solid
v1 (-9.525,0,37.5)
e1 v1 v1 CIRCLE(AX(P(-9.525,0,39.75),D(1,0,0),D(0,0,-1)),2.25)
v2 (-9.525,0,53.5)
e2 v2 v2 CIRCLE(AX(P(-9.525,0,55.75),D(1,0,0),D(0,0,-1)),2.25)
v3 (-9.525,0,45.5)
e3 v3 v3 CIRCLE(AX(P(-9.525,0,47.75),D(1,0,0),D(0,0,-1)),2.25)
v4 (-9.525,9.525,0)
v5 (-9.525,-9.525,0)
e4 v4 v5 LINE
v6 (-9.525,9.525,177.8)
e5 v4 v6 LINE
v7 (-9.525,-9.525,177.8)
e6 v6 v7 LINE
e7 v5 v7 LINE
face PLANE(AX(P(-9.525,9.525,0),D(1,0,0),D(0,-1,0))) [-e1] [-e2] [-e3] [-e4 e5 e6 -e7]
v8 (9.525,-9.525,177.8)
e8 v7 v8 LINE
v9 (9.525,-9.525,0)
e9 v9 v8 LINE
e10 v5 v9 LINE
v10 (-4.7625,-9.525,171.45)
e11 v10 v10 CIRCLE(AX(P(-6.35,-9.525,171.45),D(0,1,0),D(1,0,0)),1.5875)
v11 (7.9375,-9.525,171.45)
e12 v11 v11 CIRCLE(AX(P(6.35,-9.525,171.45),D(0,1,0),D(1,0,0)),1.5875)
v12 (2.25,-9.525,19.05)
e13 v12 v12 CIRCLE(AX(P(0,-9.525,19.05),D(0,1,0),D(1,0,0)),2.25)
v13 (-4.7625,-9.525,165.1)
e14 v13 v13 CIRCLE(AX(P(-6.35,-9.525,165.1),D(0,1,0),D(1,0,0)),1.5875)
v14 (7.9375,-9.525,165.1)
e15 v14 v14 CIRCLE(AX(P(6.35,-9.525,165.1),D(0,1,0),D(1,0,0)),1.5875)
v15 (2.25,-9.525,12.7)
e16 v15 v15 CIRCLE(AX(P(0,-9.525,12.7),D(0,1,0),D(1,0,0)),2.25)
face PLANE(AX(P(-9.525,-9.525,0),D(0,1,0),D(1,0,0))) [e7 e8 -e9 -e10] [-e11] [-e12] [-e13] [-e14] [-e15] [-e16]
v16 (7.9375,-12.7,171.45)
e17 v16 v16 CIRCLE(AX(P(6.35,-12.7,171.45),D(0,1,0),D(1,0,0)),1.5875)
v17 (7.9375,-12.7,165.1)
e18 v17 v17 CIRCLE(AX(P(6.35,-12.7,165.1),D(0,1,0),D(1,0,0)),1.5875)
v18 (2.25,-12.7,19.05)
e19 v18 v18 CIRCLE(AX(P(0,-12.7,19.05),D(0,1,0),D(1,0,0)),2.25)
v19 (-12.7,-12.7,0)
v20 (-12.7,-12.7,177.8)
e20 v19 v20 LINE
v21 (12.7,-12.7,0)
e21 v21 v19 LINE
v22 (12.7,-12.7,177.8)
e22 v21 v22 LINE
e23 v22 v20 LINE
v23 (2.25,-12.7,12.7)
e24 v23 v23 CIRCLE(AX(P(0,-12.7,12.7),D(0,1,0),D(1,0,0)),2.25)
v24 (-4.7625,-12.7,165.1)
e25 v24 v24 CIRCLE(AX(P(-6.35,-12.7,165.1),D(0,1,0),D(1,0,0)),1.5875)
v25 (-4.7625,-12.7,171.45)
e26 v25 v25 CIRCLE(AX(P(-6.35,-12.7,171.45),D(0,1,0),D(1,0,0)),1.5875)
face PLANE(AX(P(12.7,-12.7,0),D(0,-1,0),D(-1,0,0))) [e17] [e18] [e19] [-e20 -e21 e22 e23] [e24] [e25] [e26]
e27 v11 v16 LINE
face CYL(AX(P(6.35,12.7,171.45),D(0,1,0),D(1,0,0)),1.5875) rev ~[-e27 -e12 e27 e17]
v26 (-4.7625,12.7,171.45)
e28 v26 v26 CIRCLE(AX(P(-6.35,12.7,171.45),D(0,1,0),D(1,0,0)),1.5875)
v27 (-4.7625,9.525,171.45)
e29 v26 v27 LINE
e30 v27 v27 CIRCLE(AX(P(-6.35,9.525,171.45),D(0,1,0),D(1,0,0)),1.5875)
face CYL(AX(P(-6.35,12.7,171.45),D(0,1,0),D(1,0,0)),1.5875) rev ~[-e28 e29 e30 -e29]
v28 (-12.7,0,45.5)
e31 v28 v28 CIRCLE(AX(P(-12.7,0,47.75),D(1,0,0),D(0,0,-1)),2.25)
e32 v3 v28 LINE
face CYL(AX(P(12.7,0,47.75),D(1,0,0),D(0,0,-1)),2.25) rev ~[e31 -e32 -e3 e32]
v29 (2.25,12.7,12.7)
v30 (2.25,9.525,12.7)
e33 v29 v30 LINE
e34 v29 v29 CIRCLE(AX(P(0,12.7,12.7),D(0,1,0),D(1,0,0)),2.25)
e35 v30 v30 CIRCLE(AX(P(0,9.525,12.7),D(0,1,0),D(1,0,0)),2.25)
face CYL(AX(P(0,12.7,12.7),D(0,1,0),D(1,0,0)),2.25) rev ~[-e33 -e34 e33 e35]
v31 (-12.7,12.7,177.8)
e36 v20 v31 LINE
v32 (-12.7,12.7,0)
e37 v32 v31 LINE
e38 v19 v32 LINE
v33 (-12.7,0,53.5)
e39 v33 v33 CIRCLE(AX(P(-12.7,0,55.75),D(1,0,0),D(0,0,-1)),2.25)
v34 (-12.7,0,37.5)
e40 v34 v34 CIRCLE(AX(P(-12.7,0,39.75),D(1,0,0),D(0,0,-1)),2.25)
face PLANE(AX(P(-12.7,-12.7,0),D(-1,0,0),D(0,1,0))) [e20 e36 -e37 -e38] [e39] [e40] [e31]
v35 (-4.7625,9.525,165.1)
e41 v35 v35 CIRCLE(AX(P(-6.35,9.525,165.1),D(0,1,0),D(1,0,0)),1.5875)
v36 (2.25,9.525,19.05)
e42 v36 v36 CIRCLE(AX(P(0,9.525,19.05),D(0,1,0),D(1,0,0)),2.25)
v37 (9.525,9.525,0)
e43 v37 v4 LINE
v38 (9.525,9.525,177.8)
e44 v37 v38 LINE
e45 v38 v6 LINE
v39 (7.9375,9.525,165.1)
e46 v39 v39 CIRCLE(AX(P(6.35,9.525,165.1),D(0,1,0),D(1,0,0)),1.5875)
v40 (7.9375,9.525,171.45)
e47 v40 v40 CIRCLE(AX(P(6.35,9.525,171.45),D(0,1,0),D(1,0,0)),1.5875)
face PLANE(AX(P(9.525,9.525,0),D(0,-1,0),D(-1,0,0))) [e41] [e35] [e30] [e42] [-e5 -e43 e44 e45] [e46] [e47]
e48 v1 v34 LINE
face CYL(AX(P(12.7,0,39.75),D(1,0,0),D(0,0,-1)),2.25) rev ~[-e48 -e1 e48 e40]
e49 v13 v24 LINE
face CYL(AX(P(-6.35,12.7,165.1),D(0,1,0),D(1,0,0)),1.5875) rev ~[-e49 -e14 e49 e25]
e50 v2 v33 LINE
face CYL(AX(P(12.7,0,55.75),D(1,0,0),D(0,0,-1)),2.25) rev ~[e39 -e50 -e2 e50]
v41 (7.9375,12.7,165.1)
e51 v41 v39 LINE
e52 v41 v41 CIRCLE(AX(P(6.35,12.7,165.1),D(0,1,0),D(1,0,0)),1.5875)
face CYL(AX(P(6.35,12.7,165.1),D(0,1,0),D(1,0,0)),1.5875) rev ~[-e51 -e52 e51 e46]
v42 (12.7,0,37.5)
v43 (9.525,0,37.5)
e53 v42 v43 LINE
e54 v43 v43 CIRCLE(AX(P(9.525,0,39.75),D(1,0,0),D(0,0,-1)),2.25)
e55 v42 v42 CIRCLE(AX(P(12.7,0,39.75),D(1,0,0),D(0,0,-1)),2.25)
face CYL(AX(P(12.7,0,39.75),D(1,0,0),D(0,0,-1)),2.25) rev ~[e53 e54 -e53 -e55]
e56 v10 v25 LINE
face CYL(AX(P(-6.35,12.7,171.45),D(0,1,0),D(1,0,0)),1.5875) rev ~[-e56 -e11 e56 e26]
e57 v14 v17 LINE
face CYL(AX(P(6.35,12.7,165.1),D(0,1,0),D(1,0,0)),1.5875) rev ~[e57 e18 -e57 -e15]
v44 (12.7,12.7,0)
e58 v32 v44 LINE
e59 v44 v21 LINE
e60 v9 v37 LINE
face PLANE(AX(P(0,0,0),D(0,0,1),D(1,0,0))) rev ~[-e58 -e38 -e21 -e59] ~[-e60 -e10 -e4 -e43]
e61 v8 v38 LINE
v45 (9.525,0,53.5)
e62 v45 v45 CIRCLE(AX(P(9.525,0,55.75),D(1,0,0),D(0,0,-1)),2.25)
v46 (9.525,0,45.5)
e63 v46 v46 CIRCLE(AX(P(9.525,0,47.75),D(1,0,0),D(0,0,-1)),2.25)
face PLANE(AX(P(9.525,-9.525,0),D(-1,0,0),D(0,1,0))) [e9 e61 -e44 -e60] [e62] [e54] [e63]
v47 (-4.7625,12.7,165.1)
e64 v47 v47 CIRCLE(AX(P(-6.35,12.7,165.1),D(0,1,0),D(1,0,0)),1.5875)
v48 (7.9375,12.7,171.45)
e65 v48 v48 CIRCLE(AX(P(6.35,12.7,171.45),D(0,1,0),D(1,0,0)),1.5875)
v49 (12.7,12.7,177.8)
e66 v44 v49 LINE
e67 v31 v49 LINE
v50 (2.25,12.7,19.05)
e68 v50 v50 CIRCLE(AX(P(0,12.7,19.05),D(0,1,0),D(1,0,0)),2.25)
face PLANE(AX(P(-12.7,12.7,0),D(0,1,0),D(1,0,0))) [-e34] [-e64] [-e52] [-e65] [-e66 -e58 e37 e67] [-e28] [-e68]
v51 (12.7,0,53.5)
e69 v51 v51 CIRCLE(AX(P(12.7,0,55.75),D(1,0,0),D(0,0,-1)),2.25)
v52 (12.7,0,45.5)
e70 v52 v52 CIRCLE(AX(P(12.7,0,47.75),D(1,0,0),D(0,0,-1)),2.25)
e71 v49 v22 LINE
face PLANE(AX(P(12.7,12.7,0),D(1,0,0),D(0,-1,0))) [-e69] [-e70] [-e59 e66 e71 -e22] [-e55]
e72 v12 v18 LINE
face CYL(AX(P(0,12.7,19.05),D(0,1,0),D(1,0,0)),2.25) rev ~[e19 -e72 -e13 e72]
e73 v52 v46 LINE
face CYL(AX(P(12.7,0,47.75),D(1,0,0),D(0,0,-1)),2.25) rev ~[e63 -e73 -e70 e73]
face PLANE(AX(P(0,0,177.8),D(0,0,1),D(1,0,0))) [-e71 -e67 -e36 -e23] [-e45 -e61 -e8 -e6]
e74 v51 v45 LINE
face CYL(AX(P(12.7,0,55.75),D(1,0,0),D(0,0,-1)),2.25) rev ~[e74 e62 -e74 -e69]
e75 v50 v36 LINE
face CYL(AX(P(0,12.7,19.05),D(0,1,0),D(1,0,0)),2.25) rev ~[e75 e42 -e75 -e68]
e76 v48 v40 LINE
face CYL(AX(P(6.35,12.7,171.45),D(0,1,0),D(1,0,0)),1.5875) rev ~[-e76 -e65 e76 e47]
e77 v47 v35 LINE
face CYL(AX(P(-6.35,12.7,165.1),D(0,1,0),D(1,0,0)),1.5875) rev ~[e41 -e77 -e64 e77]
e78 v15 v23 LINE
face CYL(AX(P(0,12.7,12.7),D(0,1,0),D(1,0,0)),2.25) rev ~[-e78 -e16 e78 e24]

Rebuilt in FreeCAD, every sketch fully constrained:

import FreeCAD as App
import Part
import Sketcher
from FreeCAD import Vector
Q = App.Units.Quantity

doc = App.newDocument("Part")
body = doc.addObject("PartDesign::Body", "Body")

sketch1 = doc.addObject("Sketcher::SketchObject", "Sketch")
body.addObject(sketch1)
sketch1.AttachmentSupport = (doc.XY_Plane, [""])
sketch1.MapMode = "FlatFace"
sketch1.addGeometry([
    Part.LineSegment(Vector(-13, -13, 0), Vector(13, -13, 0)),
    Part.LineSegment(Vector(13, -13, 0), Vector(13, 13, 0)),
    Part.LineSegment(Vector(13, 13, 0), Vector(-13, 13, 0)),
    Part.LineSegment(Vector(-13, 13, 0), Vector(-13, -13, 0)),
    Part.LineSegment(Vector(-10, 10, 0), Vector(10, 10, 0)),
    Part.LineSegment(Vector(10, 10, 0), Vector(10, -10, 0)),
    Part.LineSegment(Vector(10, -10, 0), Vector(-10, -10, 0)),
    Part.LineSegment(Vector(-10, -10, 0), Vector(-10, 10, 0)),
], False)
sketch1.addConstraint([
    Sketcher.Constraint("Coincident", 0, 2, 1, 1),
    Sketcher.Constraint("Coincident", 1, 2, 2, 1),
    Sketcher.Constraint("Coincident", 2, 2, 3, 1),
    Sketcher.Constraint("Coincident", 3, 2, 0, 1),
    Sketcher.Constraint("Coincident", 4, 2, 5, 1),
    Sketcher.Constraint("Coincident", 5, 2, 6, 1),
    Sketcher.Constraint("Coincident", 6, 2, 7, 1),
    Sketcher.Constraint("Coincident", 7, 2, 4, 1),
    Sketcher.Constraint("Horizontal", 0),
    Sketcher.Constraint("Vertical", 1),
    Sketcher.Constraint("Horizontal", 2),
    Sketcher.Constraint("Vertical", 3),
    Sketcher.Constraint("Horizontal", 4),
    Sketcher.Constraint("Vertical", 5),
    Sketcher.Constraint("Horizontal", 6),
    Sketcher.Constraint("Vertical", 7),
    Sketcher.Constraint("Symmetric", 0, 2, 2, 2, -1, 1),
    Sketcher.Constraint("Symmetric", 4, 2, 6, 2, -1, 1),
    Sketcher.Constraint("Equal", 2, 1),
    Sketcher.Constraint("Equal", 6, 5),
    Sketcher.Constraint("DistanceX", 0, 1, 0, 2, Q("1 in")),
    Sketcher.Constraint("DistanceX", 4, 2, 1, 2, Q("0.125 in")),
])
pad1 = doc.addObject("PartDesign::Pad", "Pad")
body.addObject(pad1)
pad1.Profile = sketch1
pad1.Length = Q("7 in")

sketch2 = doc.addObject("Sketcher::SketchObject", "Sketch001")
body.addObject(sketch2)
sketch2.AttachmentSupport = (doc.YZ_Plane, [""])
sketch2.MapMode = "FlatFace"
sketch2.AttachmentOffset = App.Placement(Vector(0, 0, 0.5 * 25.4), App.Rotation())
sketch2.addGeometry([
    Part.Circle(Vector(0, 39.8, 0), Vector(0, 0, 1), 2.2),
    Part.Circle(Vector(0, 47.8, 0), Vector(0, 0, 1), 2.2),
    Part.Circle(Vector(0, 55.8, 0), Vector(0, 0, 1), 2.2),
], False)
sketch2.addConstraint([
    Sketcher.Constraint("Equal", 0, 1),
    Sketcher.Constraint("Equal", 1, 2),
    Sketcher.Constraint("PointOnObject", 0, 3, -2),
    Sketcher.Constraint("PointOnObject", 1, 3, -2),
    Sketcher.Constraint("PointOnObject", 2, 3, -2),
    Sketcher.Constraint("Diameter", 0, Q("4.5 mm")),
    Sketcher.Constraint("DistanceY", 0, 3, 1, 3, Q("8 mm")),
    Sketcher.Constraint("DistanceY", 1, 3, 2, 3, Q("8 mm")),
    Sketcher.Constraint("DistanceY", -1, 1, 0, 3, Q("39.75 mm")),
])
pocket1 = doc.addObject("PartDesign::Pocket", "Pocket")
body.addObject(pocket1)
pocket1.Profile = sketch2
pocket1.Type = "ThroughAll"

sketch3 = doc.addObject("Sketcher::SketchObject", "Sketch002")
body.addObject(sketch3)
sketch3.AttachmentSupport = (doc.XZ_Plane, [""])
sketch3.MapMode = "FlatFace"
sketch3.AttachmentOffset = App.Placement(Vector(0, 0, -0.5 * 25.4), App.Rotation())
sketch3.addGeometry([
    Part.Circle(Vector(0, 12.7, 0), Vector(0, 0, 1), 2.2),
    Part.Circle(Vector(0, 19.1, 0), Vector(0, 0, 1), 2.2),
], False)
sketch3.addConstraint([
    Sketcher.Constraint("Equal", 0, 1),
    Sketcher.Constraint("PointOnObject", 0, 3, -2),
    Sketcher.Constraint("PointOnObject", 1, 3, -2),
    Sketcher.Constraint("DistanceY", -1, 1, 0, 3, Q("0.5 in")),
    Sketcher.Constraint("Diameter", 0, Q("4.5 mm")),
    Sketcher.Constraint("DistanceY", 0, 3, 1, 3, Q("0.25 in")),
])
pocket2 = doc.addObject("PartDesign::Pocket", "Pocket001")
body.addObject(pocket2)
pocket2.Profile = sketch3
pocket2.Length = Q("1 in")
pocket2.Reversed = True

sketch4 = doc.addObject("Sketcher::SketchObject", "Sketch003")
body.addObject(sketch4)
sketch4.AttachmentSupport = (doc.XZ_Plane, [""])
sketch4.MapMode = "FlatFace"
sketch4.AttachmentOffset = App.Placement(Vector(0, 0, -0.5 * 25.4), App.Rotation())
sketch4.addGeometry([
    Part.Circle(Vector(-6.3, 171.4, 0), Vector(0, 0, 1), 1.6),
    Part.Circle(Vector(6.3, 171.4, 0), Vector(0, 0, 1), 1.6),
    Part.Circle(Vector(-6.3, 165.1, 0), Vector(0, 0, 1), 1.6),
    Part.Circle(Vector(6.3, 165.1, 0), Vector(0, 0, 1), 1.6),
], False)
sketch4.addConstraint([
    Sketcher.Constraint("Equal", 0, 1),
    Sketcher.Constraint("Equal", 1, 2),
    Sketcher.Constraint("Equal", 2, 3),
    Sketcher.Constraint("Symmetric", 0, 3, 1, 3, -2),
    Sketcher.Constraint("Symmetric", 2, 3, 3, 3, -2),
    Sketcher.Constraint("Vertical", 0, 3, 2, 3),
    Sketcher.Constraint("Diameter", 0, Q("0.125 in")),
    Sketcher.Constraint("DistanceX", 0, 3, -1, 1, Q("0.25 in")),
    Sketcher.Constraint("DistanceY", 2, 3, 0, 3, Q("0.25 in")),
    Sketcher.Constraint("DistanceY", -1, 1, 2, 3, Q("6.5 in")),
])
pocket3 = doc.addObject("PartDesign::Pocket", "Pocket002")
body.addObject(pocket3)
pocket3.Profile = sketch4
pocket3.Type = "ThroughAll"
pocket3.Reversed = True

doc.recompute()
